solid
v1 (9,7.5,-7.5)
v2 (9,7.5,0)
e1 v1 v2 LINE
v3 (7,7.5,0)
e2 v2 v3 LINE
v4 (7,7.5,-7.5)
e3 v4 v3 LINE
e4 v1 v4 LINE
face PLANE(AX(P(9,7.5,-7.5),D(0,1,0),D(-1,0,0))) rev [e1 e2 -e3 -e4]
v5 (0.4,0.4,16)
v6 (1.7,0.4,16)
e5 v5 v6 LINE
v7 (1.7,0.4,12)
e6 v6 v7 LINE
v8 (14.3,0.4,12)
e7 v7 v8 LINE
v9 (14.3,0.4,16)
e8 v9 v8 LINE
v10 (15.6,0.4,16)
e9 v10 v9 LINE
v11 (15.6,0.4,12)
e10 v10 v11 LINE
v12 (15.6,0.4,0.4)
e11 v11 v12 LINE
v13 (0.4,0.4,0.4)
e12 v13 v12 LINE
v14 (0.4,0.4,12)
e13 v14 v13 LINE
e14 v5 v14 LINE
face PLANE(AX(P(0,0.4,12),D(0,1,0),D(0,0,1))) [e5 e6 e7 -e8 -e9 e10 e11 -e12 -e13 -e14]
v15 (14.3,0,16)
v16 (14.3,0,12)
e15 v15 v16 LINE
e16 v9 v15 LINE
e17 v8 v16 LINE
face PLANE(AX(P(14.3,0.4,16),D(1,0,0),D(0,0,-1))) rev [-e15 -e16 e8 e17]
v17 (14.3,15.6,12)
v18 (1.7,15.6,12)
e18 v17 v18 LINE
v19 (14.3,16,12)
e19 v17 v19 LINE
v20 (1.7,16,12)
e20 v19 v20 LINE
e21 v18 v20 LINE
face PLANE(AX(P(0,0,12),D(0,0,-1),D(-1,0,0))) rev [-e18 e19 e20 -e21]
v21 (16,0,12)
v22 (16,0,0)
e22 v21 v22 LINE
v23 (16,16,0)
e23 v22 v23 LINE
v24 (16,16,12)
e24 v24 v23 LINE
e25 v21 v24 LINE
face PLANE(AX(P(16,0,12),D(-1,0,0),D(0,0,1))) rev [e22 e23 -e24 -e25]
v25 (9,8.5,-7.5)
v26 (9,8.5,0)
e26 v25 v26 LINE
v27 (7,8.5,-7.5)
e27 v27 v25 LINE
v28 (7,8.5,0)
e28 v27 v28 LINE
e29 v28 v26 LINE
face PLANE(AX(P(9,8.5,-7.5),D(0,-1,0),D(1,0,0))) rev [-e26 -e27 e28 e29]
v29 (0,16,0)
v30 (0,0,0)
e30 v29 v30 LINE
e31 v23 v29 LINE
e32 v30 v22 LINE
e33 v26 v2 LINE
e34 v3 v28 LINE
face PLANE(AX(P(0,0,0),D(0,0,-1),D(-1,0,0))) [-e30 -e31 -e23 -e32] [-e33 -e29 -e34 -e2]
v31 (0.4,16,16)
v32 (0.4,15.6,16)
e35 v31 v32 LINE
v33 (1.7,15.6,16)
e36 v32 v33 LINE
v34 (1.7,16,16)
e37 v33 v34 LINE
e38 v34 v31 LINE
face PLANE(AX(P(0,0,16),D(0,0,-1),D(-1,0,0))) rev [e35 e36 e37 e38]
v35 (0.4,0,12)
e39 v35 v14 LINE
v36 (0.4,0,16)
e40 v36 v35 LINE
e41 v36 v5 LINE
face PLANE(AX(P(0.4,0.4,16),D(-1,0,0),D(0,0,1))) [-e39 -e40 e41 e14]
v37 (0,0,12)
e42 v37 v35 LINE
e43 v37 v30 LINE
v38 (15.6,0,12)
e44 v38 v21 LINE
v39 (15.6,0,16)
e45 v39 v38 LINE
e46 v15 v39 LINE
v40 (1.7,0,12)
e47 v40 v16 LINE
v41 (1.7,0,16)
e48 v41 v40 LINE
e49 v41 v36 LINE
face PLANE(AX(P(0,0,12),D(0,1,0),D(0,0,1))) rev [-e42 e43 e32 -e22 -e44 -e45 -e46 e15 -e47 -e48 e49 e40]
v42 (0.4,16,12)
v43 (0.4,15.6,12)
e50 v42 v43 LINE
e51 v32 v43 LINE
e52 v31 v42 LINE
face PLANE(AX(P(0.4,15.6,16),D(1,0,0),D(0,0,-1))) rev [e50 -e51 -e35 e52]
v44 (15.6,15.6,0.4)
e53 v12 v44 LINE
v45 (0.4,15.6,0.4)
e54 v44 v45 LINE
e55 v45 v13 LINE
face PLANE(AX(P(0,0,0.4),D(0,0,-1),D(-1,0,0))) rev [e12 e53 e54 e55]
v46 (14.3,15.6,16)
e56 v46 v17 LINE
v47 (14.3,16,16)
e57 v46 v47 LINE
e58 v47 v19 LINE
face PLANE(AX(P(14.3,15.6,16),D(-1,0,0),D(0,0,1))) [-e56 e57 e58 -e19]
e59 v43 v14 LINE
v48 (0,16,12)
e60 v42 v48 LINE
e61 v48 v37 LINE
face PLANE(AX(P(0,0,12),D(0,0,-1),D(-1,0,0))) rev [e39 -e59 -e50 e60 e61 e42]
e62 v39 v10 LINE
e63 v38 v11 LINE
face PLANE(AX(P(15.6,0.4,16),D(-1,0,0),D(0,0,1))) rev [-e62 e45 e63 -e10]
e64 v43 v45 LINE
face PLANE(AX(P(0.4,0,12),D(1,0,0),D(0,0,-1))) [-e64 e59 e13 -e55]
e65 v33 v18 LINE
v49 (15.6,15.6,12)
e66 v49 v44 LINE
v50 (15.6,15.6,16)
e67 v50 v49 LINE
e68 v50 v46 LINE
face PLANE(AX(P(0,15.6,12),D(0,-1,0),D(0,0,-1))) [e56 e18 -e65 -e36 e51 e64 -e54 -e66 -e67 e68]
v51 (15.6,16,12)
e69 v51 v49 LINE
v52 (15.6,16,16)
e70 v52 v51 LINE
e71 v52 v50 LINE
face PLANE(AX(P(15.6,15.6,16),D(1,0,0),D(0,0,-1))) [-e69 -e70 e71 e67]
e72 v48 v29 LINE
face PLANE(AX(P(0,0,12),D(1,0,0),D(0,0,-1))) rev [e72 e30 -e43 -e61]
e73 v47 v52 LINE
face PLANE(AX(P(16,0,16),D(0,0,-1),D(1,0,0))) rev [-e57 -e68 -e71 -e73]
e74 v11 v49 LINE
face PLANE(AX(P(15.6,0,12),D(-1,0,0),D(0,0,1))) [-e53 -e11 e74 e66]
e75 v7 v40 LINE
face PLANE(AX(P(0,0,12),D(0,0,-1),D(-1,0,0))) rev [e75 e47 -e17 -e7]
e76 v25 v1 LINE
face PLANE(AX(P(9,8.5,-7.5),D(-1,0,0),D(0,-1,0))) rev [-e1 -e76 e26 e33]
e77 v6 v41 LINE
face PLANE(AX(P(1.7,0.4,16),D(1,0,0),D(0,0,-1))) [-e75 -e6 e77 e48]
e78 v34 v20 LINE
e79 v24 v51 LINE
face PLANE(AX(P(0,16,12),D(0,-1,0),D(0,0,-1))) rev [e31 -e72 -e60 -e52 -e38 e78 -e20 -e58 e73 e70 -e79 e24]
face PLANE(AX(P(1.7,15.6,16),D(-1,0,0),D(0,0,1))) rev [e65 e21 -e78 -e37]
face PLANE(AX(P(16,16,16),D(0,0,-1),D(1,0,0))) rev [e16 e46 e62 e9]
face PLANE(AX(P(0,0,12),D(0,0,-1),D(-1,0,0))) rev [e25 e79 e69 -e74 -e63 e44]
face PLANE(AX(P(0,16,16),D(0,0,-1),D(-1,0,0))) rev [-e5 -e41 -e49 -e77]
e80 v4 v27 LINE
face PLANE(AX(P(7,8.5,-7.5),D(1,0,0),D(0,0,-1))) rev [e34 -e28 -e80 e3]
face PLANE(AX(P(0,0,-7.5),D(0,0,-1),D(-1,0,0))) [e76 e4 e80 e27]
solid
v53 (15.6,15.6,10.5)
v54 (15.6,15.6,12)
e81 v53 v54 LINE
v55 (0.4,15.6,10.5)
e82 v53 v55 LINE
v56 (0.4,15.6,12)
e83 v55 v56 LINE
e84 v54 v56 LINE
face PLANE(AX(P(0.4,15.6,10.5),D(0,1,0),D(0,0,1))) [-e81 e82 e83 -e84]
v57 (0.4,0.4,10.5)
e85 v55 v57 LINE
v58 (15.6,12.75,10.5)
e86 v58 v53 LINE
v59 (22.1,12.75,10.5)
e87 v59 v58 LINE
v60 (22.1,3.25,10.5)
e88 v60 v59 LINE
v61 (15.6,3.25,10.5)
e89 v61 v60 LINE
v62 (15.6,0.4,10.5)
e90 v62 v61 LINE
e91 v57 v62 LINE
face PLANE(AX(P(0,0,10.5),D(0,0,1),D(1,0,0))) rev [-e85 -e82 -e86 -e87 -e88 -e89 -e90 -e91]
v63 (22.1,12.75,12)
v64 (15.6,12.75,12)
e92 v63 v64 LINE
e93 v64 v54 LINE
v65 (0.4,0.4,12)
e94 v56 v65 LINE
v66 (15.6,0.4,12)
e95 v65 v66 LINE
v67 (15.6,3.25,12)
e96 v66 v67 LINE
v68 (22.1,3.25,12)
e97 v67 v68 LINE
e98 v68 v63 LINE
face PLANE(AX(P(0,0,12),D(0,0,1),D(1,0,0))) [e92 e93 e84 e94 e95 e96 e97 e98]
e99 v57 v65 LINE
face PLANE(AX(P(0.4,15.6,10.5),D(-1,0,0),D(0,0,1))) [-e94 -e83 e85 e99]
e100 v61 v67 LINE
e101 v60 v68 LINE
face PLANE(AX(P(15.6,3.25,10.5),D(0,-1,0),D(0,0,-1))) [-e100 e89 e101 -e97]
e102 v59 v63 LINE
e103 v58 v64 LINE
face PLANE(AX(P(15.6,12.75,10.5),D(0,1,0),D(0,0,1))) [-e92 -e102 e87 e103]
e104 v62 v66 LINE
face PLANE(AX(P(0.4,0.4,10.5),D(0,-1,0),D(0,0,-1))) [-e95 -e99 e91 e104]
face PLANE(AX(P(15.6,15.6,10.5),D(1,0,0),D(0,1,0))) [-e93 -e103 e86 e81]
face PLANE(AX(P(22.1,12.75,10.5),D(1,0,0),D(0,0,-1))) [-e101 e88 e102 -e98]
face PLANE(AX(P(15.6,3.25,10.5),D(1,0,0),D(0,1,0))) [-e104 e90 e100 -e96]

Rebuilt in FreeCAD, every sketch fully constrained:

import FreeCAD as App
import Part
import Sketcher

V = App.Vector


def faces_at(feature, points):
    """Names of the faces that lie closest to the given points."""
    faces = feature.Shape.Faces
    near = lambda p: min(range(len(faces)), key=lambda i: faces[i].distToShape(Part.Vertex(*p))[0])
    return sorted({f"Face{near(p) + 1}" for p in points})


def add_polygon(sketch, points):
    """Adds a closed chain of lines whose ends are joined by coincident constraints."""
    first, n = sketch.GeometryCount, len(points)
    for a, b in zip(points, points[1:] + points[:1]):
        sketch.addGeometry(Part.LineSegment(App.Vector(*a, 0), App.Vector(*b, 0)), False)
    for i in range(n):
        sketch.addConstraint(Sketcher.Constraint("Coincident", first + i, 2, first + (i + 1) % n, 1))

doc = App.newDocument("Part")
body = doc.addObject("PartDesign::Body", "Body")

sketch1 = doc.addObject("Sketcher::SketchObject", "Sketch")
body.addObject(sketch1)
sketch1.AttachmentSupport = (doc.XY_Plane, [""])
sketch1.MapMode = "FlatFace"
add_polygon(sketch1, [(0, 16), (0, 0), (16, 0), (16, 16)])
sketch1.addConstraint(Sketcher.Constraint("Vertical", 0))
sketch1.addConstraint(Sketcher.Constraint("Horizontal", 1))
sketch1.addConstraint(Sketcher.Constraint("Vertical", 2))
sketch1.addConstraint(Sketcher.Constraint("Horizontal", 3))
sketch1.addConstraint(Sketcher.Constraint("Coincident", 0, 2, -1, 1))
sketch1.addConstraint(Sketcher.Constraint("Equal", 3, 0))
sketch1.addConstraint(Sketcher.Constraint("DistanceX", 1, 1, 1, 2, 16.0))
pad1 = doc.addObject("PartDesign::Pad", "Pad")
body.addObject(pad1)
pad1.Profile = sketch1
pad1.Length = 12
doc.recompute()

thickness = doc.addObject("PartDesign::Thickness", "Thickness")
body.addObject(thickness)
thickness.Base = (pad1, faces_at(pad1, [(8, 8, 12)]))
thickness.Value = 0.4
thickness.Reversed = True
thickness.Join = "Intersection"

sketch2 = doc.addObject("Sketcher::SketchObject", "Sketch001")
body.addObject(sketch2)
sketch2.AttachmentSupport = (doc.XY_Plane, [""])
sketch2.MapMode = "FlatFace"
sketch2.AttachmentOffset = App.Placement(V(0, 0, 12), App.Rotation())
add_polygon(sketch2, [(0.4, 16), (0.4, 15.6), (1.7, 15.6), (1.7, 16)])
sketch2.addConstraint(Sketcher.Constraint("Vertical", 0))
sketch2.addConstraint(Sketcher.Constraint("Horizontal", 1))
sketch2.addConstraint(Sketcher.Constraint("Vertical", 2))
sketch2.addConstraint(Sketcher.Constraint("Horizontal", 3))
sketch2.addConstraint(Sketcher.Constraint("DistanceX", 1, 1, 1, 2, 1.3))
sketch2.addConstraint(Sketcher.Constraint("DistanceY", 0, 2, 0, 1, 0.4))
sketch2.addConstraint(Sketcher.Constraint("DistanceY", -1, 1, 2, 2, 16.0))
sketch2.addConstraint(Sketcher.Constraint("DistanceX", -1, 1, 0, 2, 0.4))
pad2 = doc.addObject("PartDesign::Pad", "Pad001")
body.addObject(pad2)
pad2.Profile = sketch2
pad2.Length = 4
doc.recompute()

datumplane = doc.addObject("PartDesign::Plane", "DatumPlane")
body.addObject(datumplane)
datumplane.AttachmentSupport = (doc.YZ_Plane, [""])
datumplane.MapMode = "FlatFace"
datumplane.AttachmentOffset = App.Placement(V(0, 0, 8), App.Rotation())
mirrored = doc.addObject("PartDesign::Mirrored", "Mirrored")
body.addObject(mirrored)
mirrored.Originals = [pad2]
mirrored.MirrorPlane = (datumplane, [""])
body.Tip = mirrored
doc.recompute()

datumplane2 = doc.addObject("PartDesign::Plane", "DatumPlane001")
body.addObject(datumplane2)
datumplane2.AttachmentSupport = (doc.XZ_Plane, [""])
datumplane2.MapMode = "FlatFace"
datumplane2.AttachmentOffset = App.Placement(V(0, 0, -8), App.Rotation())
mirrored2 = doc.addObject("PartDesign::Mirrored", "Mirrored001")
body.addObject(mirrored2)
mirrored2.Originals = [pad2]
mirrored2.MirrorPlane = (datumplane2, [""])
body.Tip = mirrored2

sketch3 = doc.addObject("Sketcher::SketchObject", "Sketch002")
body.addObject(sketch3)
sketch3.AttachmentSupport = (doc.XY_Plane, [""])
sketch3.MapMode = "FlatFace"
sketch3.AttachmentOffset = App.Placement(V(0, 0, 12), App.Rotation())
add_polygon(sketch3, [(15.6, 0), (15.6, 0.4), (14.3, 0.4), (14.3, 0)])
sketch3.addConstraint(Sketcher.Constraint("Vertical", 0))
sketch3.addConstraint(Sketcher.Constraint("Horizontal", 1))
sketch3.addConstraint(Sketcher.Constraint("Vertical", 2))
sketch3.addConstraint(Sketcher.Constraint("Horizontal", 3))
sketch3.addConstraint(Sketcher.Constraint("PointOnObject", 2, 2, -1))
sketch3.addConstraint(Sketcher.Constraint("DistanceX", 1, 2, 1, 1, 1.3))
sketch3.addConstraint(Sketcher.Constraint("DistanceY", 0, 1, 0, 2, 0.4))
sketch3.addConstraint(Sketcher.Constraint("DistanceX", -1, 1, 0, 2, 15.6))
pad3 = doc.addObject("PartDesign::Pad", "Pad002")
body.addObject(pad3)
pad3.Profile = sketch3
pad3.Length = 4

sketch4 = doc.addObject("Sketcher::SketchObject", "Sketch003")
body.addObject(sketch4)
sketch4.AttachmentSupport = (doc.XY_Plane, [""])
sketch4.MapMode = "FlatFace"
add_polygon(sketch4, [(9, 8.5), (9, 7.5), (7, 7.5), (7, 8.5)])
sketch4.addConstraint(Sketcher.Constraint("Vertical", 0))
sketch4.addConstraint(Sketcher.Constraint("Horizontal", 1))
sketch4.addConstraint(Sketcher.Constraint("Vertical", 2))
sketch4.addConstraint(Sketcher.Constraint("Horizontal", 3))
sketch4.addConstraint(Sketcher.Constraint("DistanceX", 1, 2, 1, 1, 2.0))
sketch4.addConstraint(Sketcher.Constraint("DistanceY", 0, 2, 0, 1, 1.0))
sketch4.addConstraint(Sketcher.Constraint("DistanceX", -1, 1, 0, 2, 9.0))
sketch4.addConstraint(Sketcher.Constraint("DistanceY", -1, 1, 0, 2, 7.5))
pad4 = doc.addObject("PartDesign::Pad", "Pad003")
body.addObject(pad4)
pad4.Profile = sketch4
pad4.Length = 7.5
pad4.Reversed = True
body2 = doc.addObject("PartDesign::Body", "Body001")

sketch5 = doc.addObject("Sketcher::SketchObject", "Sketch004")
body2.addObject(sketch5)
sketch5.AttachmentSupport = (doc.getObject("XY_Plane001"), [""])
sketch5.MapMode = "FlatFace"
sketch5.AttachmentOffset = App.Placement(V(0, 0, 12), App.Rotation())
add_polygon(sketch5, [(15.6, 15.6), (0.4, 15.6), (0.4, 0.4), (15.6, 0.4), (15.6, 3.2), (22.1, 3.2), (22.1, 12.8), (15.6, 12.8)])
sketch5.addConstraint(Sketcher.Constraint("Horizontal", 0))
sketch5.addConstraint(Sketcher.Constraint("Vertical", 1))
sketch5.addConstraint(Sketcher.Constraint("Horizontal", 2))
sketch5.addConstraint(Sketcher.Constraint("Vertical", 3))
sketch5.addConstraint(Sketcher.Constraint("Horizontal", 4))
sketch5.addConstraint(Sketcher.Constraint("Vertical", 5))
sketch5.addConstraint(Sketcher.Constraint("Horizontal", 6))
sketch5.addConstraint(Sketcher.Constraint("Vertical", 7))
sketch5.addConstraint(Sketcher.Constraint("Vertical", 3, 2, 6, 2))
sketch5.addConstraint(Sketcher.Constraint("Equal", 2, 1))
sketch5.addConstraint(Sketcher.Constraint("Equal", 3, 7))
sketch5.addConstraint(Sketcher.Constraint("DistanceX", 0, 2, 0, 1, 15.2))
sketch5.addConstraint(Sketcher.Constraint("DistanceX", 4, 1, 4, 2, 6.5))
sketch5.addConstraint(Sketcher.Constraint("DistanceY", 5, 1, 5, 2, 9.5))
sketch5.addConstraint(Sketcher.Constraint("DistanceX", -1, 1, 0, 2, 0.4))
sketch5.addConstraint(Sketcher.Constraint("DistanceY", -1, 1, 0, 2, 15.6))
pad5 = doc.addObject("PartDesign::Pad", "Pad004")
body2.addObject(pad5)
pad5.Profile = sketch5
pad5.Length = 1.5
pad5.Reversed = True

doc.recompute()
